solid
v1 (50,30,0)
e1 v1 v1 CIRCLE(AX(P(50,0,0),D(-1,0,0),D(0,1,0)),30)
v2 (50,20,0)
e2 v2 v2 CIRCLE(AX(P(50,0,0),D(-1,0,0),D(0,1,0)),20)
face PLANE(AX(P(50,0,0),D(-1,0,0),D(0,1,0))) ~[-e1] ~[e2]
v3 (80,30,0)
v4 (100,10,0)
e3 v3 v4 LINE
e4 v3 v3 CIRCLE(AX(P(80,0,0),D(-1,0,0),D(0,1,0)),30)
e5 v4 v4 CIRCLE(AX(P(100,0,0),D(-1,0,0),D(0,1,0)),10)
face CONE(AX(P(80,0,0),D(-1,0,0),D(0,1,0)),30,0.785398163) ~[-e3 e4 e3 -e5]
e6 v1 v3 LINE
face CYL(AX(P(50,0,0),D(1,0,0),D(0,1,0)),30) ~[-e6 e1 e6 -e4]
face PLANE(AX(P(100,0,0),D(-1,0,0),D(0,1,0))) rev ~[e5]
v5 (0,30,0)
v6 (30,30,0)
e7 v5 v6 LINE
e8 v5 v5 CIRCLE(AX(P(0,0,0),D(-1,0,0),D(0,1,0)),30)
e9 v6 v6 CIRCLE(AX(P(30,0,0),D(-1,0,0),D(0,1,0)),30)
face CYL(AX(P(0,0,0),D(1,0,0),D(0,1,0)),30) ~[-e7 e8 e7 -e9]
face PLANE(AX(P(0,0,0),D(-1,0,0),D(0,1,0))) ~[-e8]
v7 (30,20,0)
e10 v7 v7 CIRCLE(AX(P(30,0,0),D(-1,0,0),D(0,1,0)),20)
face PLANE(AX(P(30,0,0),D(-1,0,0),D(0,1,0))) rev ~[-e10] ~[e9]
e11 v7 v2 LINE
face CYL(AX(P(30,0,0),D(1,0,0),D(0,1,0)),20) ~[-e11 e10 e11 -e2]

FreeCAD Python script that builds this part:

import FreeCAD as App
import Part
import Sketcher
Q = App.Units.Quantity

doc = App.newDocument("Part")
body = doc.addObject("PartDesign::Body", "Body")

# Sketch on XY plane
sketch1 = body.newObject("Sketcher::SketchObject", "Sketch")
sketch1.AttachmentSupport = (doc.getObject("XY_Plane"), [""])
sketch1.MapMode = "FlatFace"
sketch1.addGeometry(Part.LineSegment(App.Vector(0, 30, 0), App.Vector(0, 0, 0)), False)
sketch1.addGeometry(Part.LineSegment(App.Vector(0, 0, 0), App.Vector(100, 0, 0)), False)
sketch1.addGeometry(Part.LineSegment(App.Vector(100, 0, 0), App.Vector(100, 10, 0)), False)
sketch1.addGeometry(Part.LineSegment(App.Vector(100, 10, 0), App.Vector(80, 30, 0)), False)
sketch1.addGeometry(Part.LineSegment(App.Vector(80, 30, 0), App.Vector(50, 30, 0)), False)
sketch1.addGeometry(Part.LineSegment(App.Vector(50, 30, 0), App.Vector(50, 20, 0)), False)
sketch1.addGeometry(Part.LineSegment(App.Vector(50, 20, 0), App.Vector(30, 20, 0)), False)
sketch1.addGeometry(Part.LineSegment(App.Vector(30, 20, 0), App.Vector(30, 30, 0)), False)
sketch1.addGeometry(Part.LineSegment(App.Vector(30, 30, 0), App.Vector(0, 30, 0)), False)
sketch1.addConstraint(Sketcher.Constraint("Coincident", 0, 2, 1, 1))
sketch1.addConstraint(Sketcher.Constraint("Coincident", 1, 2, 2, 1))
sketch1.addConstraint(Sketcher.Constraint("Coincident", 2, 2, 3, 1))
sketch1.addConstraint(Sketcher.Constraint("Coincident", 3, 2, 4, 1))
sketch1.addConstraint(Sketcher.Constraint("Coincident", 4, 2, 5, 1))
sketch1.addConstraint(Sketcher.Constraint("Coincident", 5, 2, 6, 1))
sketch1.addConstraint(Sketcher.Constraint("Coincident", 6, 2, 7, 1))
sketch1.addConstraint(Sketcher.Constraint("Coincident", 7, 2, 8, 1))
sketch1.addConstraint(Sketcher.Constraint("Coincident", 8, 2, 0, 1))
sketch1.addConstraint(Sketcher.Constraint("Vertical", 0))
sketch1.addConstraint(Sketcher.Constraint("Horizontal", 1))
sketch1.addConstraint(Sketcher.Constraint("Vertical", 2))
sketch1.addConstraint(Sketcher.Constraint("Horizontal", 4))
sketch1.addConstraint(Sketcher.Constraint("Vertical", 5))
sketch1.addConstraint(Sketcher.Constraint("Horizontal", 6))
sketch1.addConstraint(Sketcher.Constraint("Vertical", 7))
sketch1.addConstraint(Sketcher.Constraint("Horizontal", 8))
sketch1.addConstraint(Sketcher.Constraint("Coincident", 0, 2, -1, 1))
sketch1.addConstraint(Sketcher.Constraint("Horizontal", 4, 2, 7, 2))
sketch1.addConstraint(Sketcher.Constraint("Equal", 4, 8))
sketch1.addConstraint(Sketcher.Constraint("Equal", 8, 0))
sketch1.addConstraint(Sketcher.Constraint("Equal", 2, 5))
sketch1.addConstraint(Sketcher.Constraint("Angle", 3, Q("135 deg")))
sketch1.addConstraint(Sketcher.Constraint("DistanceX", 1, 1, 1, 2, Q("3.937 in")))
sketch1.addConstraint(Sketcher.Constraint("DistanceX", 4, 2, 4, 1, Q("1.1811 in")))
sketch1.addConstraint(Sketcher.Constraint("DistanceX", 6, 2, 6, 1, Q("0.7874 in")))
revolution = body.newObject("PartDesign::Revolution", "Revolution")
revolution.Profile = sketch1
revolution.ReferenceAxis = (sketch1, ["H_Axis"])
revolution.Angle = 360

doc.recompute()
